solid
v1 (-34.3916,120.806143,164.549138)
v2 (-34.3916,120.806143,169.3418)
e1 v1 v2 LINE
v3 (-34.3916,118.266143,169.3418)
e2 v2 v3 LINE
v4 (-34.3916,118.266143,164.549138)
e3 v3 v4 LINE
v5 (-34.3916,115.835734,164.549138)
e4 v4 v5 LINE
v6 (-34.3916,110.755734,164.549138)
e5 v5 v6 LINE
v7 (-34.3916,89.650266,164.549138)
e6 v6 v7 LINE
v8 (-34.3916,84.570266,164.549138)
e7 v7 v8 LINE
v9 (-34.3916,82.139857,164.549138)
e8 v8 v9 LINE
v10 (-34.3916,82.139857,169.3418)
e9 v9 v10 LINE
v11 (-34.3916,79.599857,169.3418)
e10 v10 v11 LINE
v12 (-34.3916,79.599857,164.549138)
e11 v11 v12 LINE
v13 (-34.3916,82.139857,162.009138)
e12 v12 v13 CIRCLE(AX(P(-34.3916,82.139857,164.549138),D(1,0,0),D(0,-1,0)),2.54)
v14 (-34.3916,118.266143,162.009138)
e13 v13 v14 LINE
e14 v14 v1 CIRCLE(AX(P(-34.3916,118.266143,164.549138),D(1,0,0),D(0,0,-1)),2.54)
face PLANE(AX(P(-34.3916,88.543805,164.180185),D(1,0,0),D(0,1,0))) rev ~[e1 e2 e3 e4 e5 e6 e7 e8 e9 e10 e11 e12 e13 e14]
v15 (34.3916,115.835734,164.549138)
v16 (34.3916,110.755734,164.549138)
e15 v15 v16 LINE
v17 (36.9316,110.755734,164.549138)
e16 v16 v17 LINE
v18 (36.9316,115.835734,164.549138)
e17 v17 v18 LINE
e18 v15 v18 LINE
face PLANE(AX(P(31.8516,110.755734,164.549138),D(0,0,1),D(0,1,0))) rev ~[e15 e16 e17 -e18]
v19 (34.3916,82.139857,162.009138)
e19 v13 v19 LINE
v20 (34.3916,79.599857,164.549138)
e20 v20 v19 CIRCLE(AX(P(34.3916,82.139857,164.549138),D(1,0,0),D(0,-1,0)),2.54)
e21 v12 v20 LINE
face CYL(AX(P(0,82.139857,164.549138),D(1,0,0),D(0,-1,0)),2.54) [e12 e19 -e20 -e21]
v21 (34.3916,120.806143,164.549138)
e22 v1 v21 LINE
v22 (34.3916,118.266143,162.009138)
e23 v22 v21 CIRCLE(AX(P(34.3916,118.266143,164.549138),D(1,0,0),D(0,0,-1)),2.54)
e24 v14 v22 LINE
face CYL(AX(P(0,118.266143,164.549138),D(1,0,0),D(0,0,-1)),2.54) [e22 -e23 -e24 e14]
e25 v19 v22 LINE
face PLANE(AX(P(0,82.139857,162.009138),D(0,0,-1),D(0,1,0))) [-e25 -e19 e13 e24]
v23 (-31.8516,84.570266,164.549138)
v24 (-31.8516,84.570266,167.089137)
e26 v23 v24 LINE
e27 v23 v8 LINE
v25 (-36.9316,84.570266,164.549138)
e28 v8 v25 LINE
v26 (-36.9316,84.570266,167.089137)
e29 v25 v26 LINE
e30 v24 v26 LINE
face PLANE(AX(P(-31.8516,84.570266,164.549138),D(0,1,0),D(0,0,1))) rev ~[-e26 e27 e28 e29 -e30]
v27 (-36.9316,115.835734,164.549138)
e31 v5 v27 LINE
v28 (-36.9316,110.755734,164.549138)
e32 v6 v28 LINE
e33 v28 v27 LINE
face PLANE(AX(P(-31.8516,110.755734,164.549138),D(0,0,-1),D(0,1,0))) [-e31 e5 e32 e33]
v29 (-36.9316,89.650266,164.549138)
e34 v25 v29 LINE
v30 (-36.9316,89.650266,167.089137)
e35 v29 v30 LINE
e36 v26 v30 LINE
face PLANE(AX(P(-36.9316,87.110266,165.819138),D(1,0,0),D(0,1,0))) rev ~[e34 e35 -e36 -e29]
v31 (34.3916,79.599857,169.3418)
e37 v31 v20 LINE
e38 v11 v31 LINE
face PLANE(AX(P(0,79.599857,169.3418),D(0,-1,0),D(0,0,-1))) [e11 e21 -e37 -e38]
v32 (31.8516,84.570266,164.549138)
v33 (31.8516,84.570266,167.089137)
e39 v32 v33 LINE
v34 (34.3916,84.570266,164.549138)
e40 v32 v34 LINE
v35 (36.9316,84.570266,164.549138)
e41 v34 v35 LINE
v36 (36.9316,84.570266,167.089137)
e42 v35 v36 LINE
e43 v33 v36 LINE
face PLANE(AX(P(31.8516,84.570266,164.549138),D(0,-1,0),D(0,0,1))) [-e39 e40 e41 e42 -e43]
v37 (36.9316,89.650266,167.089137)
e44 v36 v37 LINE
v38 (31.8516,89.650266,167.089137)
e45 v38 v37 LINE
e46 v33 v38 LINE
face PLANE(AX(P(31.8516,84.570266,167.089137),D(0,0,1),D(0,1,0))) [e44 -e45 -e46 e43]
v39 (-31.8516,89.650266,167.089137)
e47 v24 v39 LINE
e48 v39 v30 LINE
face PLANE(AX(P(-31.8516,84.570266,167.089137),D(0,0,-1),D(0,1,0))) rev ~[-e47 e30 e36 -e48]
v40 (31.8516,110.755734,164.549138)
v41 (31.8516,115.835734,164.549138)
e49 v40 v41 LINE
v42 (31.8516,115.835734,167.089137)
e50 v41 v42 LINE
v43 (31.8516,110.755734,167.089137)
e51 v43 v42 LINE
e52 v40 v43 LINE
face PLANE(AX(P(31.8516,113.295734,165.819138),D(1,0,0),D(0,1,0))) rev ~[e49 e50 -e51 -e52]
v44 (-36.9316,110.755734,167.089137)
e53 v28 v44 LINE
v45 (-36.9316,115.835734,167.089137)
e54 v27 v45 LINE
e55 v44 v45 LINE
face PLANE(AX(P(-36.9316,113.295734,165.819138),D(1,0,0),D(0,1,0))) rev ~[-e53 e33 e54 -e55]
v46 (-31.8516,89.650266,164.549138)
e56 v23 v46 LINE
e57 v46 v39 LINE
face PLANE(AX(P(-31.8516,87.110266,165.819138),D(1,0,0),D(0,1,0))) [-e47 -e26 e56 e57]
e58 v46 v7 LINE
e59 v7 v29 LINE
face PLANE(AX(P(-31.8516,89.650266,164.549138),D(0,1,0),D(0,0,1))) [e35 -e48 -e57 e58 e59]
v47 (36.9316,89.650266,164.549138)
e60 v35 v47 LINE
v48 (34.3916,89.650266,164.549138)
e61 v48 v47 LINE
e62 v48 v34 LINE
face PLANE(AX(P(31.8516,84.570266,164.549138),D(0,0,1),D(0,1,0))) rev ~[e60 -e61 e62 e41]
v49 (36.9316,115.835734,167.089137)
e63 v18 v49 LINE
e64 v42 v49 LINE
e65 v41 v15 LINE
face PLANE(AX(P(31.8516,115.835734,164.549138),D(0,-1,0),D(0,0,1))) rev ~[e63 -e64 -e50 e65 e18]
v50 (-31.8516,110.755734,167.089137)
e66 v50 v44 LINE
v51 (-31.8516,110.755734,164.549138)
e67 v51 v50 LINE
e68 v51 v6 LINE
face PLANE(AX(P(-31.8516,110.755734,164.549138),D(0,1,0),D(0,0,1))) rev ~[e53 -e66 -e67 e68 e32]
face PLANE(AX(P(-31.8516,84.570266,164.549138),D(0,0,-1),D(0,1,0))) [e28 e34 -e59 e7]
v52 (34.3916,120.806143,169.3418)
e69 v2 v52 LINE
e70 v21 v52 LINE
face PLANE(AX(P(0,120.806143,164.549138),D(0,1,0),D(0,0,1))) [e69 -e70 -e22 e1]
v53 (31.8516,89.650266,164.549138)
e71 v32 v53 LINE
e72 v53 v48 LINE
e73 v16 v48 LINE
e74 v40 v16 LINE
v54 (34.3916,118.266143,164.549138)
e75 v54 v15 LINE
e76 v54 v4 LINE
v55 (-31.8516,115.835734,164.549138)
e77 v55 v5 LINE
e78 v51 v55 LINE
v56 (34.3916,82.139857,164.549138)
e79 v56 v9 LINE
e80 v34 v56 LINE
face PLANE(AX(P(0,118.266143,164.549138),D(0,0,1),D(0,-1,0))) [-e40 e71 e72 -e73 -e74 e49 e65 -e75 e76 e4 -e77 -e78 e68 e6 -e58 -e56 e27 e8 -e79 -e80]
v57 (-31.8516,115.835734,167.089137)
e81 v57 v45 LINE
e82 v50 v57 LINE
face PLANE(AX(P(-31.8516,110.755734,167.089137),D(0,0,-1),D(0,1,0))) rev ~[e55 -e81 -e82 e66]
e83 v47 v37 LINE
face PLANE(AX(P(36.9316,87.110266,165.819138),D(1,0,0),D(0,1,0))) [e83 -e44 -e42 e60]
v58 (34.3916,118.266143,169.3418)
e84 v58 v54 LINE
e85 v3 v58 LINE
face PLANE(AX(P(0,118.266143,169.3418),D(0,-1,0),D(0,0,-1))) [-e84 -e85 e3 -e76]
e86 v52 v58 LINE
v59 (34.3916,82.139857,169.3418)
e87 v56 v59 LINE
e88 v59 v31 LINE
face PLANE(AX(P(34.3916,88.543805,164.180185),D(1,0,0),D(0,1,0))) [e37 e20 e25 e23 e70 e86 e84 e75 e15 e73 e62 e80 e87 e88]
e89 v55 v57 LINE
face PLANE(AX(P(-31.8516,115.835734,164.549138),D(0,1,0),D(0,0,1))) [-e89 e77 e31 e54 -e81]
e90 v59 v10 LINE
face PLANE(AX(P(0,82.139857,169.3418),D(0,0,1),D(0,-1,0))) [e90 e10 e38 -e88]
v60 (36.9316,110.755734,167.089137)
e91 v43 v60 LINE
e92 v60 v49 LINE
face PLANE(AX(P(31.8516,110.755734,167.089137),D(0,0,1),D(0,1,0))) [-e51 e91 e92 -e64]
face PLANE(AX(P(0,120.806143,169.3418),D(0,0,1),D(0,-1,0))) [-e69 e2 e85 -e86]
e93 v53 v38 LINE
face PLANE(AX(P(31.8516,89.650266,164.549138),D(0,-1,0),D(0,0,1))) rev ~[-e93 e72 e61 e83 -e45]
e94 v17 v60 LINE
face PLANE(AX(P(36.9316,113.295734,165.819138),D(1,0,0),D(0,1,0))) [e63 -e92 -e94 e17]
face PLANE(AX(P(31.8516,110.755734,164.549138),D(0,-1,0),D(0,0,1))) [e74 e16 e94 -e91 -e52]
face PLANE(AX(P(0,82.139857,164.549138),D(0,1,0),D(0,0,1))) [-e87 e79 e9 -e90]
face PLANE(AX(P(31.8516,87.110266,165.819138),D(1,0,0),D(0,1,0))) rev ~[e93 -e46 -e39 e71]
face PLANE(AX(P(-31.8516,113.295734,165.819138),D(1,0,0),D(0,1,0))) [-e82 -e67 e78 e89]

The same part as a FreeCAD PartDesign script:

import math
import FreeCAD as App
import Part
import Sketcher
from FreeCAD import Vector
Q = App.Units.Quantity


def add_polygon(sketch, points):
    """Adds a closed chain of lines whose ends are joined by coincident constraints."""
    first, n = sketch.GeometryCount, len(points)
    for a, b in zip(points, points[1:] + points[:1]):
        sketch.addGeometry(Part.LineSegment(App.Vector(*a, 0), App.Vector(*b, 0)), False)
    for i in range(n):
        sketch.addConstraint(Sketcher.Constraint("Coincident", first + i, 2, first + (i + 1) % n, 1))

doc = App.newDocument("Part")
body = doc.addObject("PartDesign::Body", "Body")

# Sketch on YZ plane
sketch1 = body.newObject("Sketcher::SketchObject", "Sketch")
sketch1.AttachmentSupport = (doc.getObject("YZ_Plane"), [""])
sketch1.MapMode = "FlatFace"
sketch1.addGeometry([
    Part.LineSegment(Vector(82.1, 169.3, 0), Vector(79.6, 169.3, 0)),  # 0
    Part.LineSegment(Vector(79.6, 169.3, 0), Vector(79.6, 164.5, 0)),  # 1
    Part.ArcOfCircle(Part.Circle(Vector(82.1, 164.5, 0), Vector(0, 0, 1), 2.5), math.radians(180), math.radians(270)),  # 2
    Part.LineSegment(Vector(82.1, 162, 0), Vector(118.3, 162, 0)),  # 3
    Part.ArcOfCircle(Part.Circle(Vector(118.3, 164.5, 0), Vector(0, 0, 1), 2.5), math.radians(-90), math.radians(0)),  # 4
    Part.LineSegment(Vector(120.8, 164.5, 0), Vector(120.8, 169.3, 0)),  # 5
    Part.LineSegment(Vector(120.8, 169.3, 0), Vector(118.3, 169.3, 0)),  # 6
    Part.LineSegment(Vector(118.3, 169.3, 0), Vector(118.3, 164.5, 0)),  # 7
    Part.LineSegment(Vector(118.3, 164.5, 0), Vector(82.1, 164.5, 0)),  # 8
    Part.LineSegment(Vector(82.1, 164.5, 0), Vector(82.1, 169.3, 0)),  # 9
], False)
sketch1.addConstraint([
    Sketcher.Constraint("Coincident", 0, 2, 1, 1),
    Sketcher.Constraint("Tangent", 1, 2, 2, 1),
    Sketcher.Constraint("Tangent", 2, 2, 3, 1),
    Sketcher.Constraint("Tangent", 3, 2, 4, 1),
    Sketcher.Constraint("Tangent", 4, 2, 5, 1),
    Sketcher.Constraint("Coincident", 5, 2, 6, 1),
    Sketcher.Constraint("Coincident", 6, 2, 7, 1),
    Sketcher.Constraint("Coincident", 7, 2, 8, 1),
    Sketcher.Constraint("Coincident", 8, 2, 9, 1),
    Sketcher.Constraint("Coincident", 9, 2, 0, 1),
    Sketcher.Constraint("Horizontal", 0),
    Sketcher.Constraint("Vertical", 1),
    Sketcher.Constraint("Horizontal", 3),
    Sketcher.Constraint("Vertical", 5),
    Sketcher.Constraint("Horizontal", 6),
    Sketcher.Constraint("Vertical", 7),
    Sketcher.Constraint("Horizontal", 8),
    Sketcher.Constraint("Vertical", 9),
    Sketcher.Constraint("Coincident", 7, 2, 4, 3),
    Sketcher.Constraint("Coincident", 8, 2, 2, 3),
    Sketcher.Constraint("Horizontal", 0, 2, 5, 2),
    Sketcher.Constraint("Radius", 2, Q("0.1 in")),
    Sketcher.Constraint("DistanceY", -1, 1, 0, 2, Q("6.667 in")),
    Sketcher.Constraint("DistanceX", 3, 1, 3, 2, Q("36.126285 mm")),
    Sketcher.Constraint("DistanceY", 1, 2, 1, 1, Q("4.792663 mm")),
    Sketcher.Constraint("DistanceX", -1, 1, 2, 3, Q("82.139857 mm")),
])
pad1 = body.newObject("PartDesign::Pad", "Pad")
pad1.Profile = sketch1
pad1.Length = Q("2.708 in")
pad1.Midplane = True

# Sketch on YZ plane
sketch2 = body.newObject("Sketcher::SketchObject", "Sketch001")
sketch2.AttachmentSupport = (doc.getObject("YZ_Plane"), [""])
sketch2.MapMode = "FlatFace"
sketch2.AttachmentOffset = App.Placement(Vector(0, 0, 1.254 * 25.4), App.Rotation())
add_polygon(sketch2, [(84.6, 167.1), (84.6, 164.5), (89.7, 164.5), (89.7, 167.1)])  # lines 0-3
add_polygon(sketch2, [(110.8, 167.1), (110.8, 164.5), (115.8, 164.5), (115.8, 167.1)])  # lines 4-7
sketch2.addConstraint([
    Sketcher.Constraint("Vertical", 0),
    Sketcher.Constraint("Horizontal", 1),
    Sketcher.Constraint("Vertical", 2),
    Sketcher.Constraint("Horizontal", 3),
    Sketcher.Constraint("Vertical", 4),
    Sketcher.Constraint("Horizontal", 5),
    Sketcher.Constraint("Vertical", 6),
    Sketcher.Constraint("Horizontal", 7),
    Sketcher.Constraint("Horizontal", 1, 2, 4, 2),
    Sketcher.Constraint("Horizontal", 3, 2, 6, 2),
    Sketcher.Constraint("Equal", 3, 5),
    Sketcher.Constraint("DistanceX", 1, 1, 1, 2, Q("0.2 in")),
    Sketcher.Constraint("DistanceY", 0, 2, 0, 1, Q("0.1 in")),
    Sketcher.Constraint("DistanceX", -1, 1, 0, 2, Q("84.570266 mm")),
    Sketcher.Constraint("DistanceY", -1, 1, 0, 2, Q("164.549138 mm")),
    Sketcher.Constraint("DistanceX", -1, 1, 4, 2, Q("110.755734 mm")),
])
pad2 = body.newObject("PartDesign::Pad", "Pad001")
pad2.Profile = sketch2
pad2.Length = Q("0.2 in")

# Sketch on YZ plane
sketch3 = body.newObject("Sketcher::SketchObject", "Sketch002")
sketch3.AttachmentSupport = (doc.getObject("YZ_Plane"), [""])
sketch3.MapMode = "FlatFace"
sketch3.AttachmentOffset = App.Placement(Vector(0, 0, -1.254 * 25.4), App.Rotation())
add_polygon(sketch3, [(84.6, 167.1), (84.6, 164.5), (89.7, 164.5), (89.7, 167.1)])  # lines 0-3
add_polygon(sketch3, [(110.8, 167.1), (110.8, 164.5), (115.8, 164.5), (115.8, 167.1)])  # lines 4-7
sketch3.addConstraint([
    Sketcher.Constraint("Vertical", 0),
    Sketcher.Constraint("Horizontal", 1),
    Sketcher.Constraint("Vertical", 2),
    Sketcher.Constraint("Horizontal", 3),
    Sketcher.Constraint("Vertical", 4),
    Sketcher.Constraint("Horizontal", 5),
    Sketcher.Constraint("Vertical", 6),
    Sketcher.Constraint("Horizontal", 7),
    Sketcher.Constraint("Horizontal", 1, 2, 4, 2),
    Sketcher.Constraint("Horizontal", 3, 2, 6, 2),
    Sketcher.Constraint("Equal", 3, 5),
    Sketcher.Constraint("DistanceX", 1, 1, 1, 2, Q("0.2 in")),
    Sketcher.Constraint("DistanceY", 0, 2, 0, 1, Q("0.1 in")),
    Sketcher.Constraint("DistanceX", -1, 1, 0, 2, Q("84.570266 mm")),
    Sketcher.Constraint("DistanceY", -1, 1, 0, 2, Q("164.549138 mm")),
    Sketcher.Constraint("DistanceX", -1, 1, 4, 2, Q("110.755734 mm")),
])
pad3 = body.newObject("PartDesign::Pad", "Pad002")
pad3.Profile = sketch3
pad3.Length = Q("0.2 in")
pad3.Reversed = True

doc.recompute()
